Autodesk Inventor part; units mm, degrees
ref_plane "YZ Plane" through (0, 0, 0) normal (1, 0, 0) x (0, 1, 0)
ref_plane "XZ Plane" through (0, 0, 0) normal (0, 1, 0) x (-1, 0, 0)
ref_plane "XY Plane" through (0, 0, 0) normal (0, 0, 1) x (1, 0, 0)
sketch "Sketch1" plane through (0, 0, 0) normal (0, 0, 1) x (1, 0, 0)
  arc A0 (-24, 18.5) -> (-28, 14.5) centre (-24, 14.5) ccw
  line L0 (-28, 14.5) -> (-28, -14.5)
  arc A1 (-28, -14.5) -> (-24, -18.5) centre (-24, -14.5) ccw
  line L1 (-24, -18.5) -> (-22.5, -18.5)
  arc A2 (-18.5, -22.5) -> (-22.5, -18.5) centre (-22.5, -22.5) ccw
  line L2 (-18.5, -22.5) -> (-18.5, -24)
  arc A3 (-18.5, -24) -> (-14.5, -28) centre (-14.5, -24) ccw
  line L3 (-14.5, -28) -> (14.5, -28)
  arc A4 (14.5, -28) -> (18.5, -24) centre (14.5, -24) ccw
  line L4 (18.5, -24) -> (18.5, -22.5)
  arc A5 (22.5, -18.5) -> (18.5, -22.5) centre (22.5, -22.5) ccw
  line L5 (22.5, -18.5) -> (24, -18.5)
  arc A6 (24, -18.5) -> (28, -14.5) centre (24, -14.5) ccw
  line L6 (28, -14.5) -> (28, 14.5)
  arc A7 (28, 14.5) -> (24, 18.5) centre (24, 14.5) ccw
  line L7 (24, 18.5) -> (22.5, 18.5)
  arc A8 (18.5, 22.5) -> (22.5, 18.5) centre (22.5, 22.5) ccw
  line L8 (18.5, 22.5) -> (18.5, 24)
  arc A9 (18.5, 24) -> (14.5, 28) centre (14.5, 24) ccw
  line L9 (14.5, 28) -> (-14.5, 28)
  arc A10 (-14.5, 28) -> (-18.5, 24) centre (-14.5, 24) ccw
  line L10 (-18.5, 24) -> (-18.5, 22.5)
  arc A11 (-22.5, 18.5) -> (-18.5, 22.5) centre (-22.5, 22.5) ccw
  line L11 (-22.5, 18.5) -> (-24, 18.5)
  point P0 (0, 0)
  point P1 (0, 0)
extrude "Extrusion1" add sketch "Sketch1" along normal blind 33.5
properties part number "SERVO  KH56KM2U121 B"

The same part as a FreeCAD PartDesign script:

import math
import FreeCAD as App
import Part
import Sketcher

doc = App.newDocument("Part")
body = doc.addObject("PartDesign::Body", "Body")

# Sketch on XY plane
sketch1 = body.newObject("Sketcher::SketchObject", "Sketch")
sketch1.AttachmentSupport = (doc.getObject("XY_Plane"), [""])
sketch1.MapMode = "FlatFace"
sketch1.addGeometry(Part.LineSegment(App.Vector(-22.5, 18.5, 0), App.Vector(-24, 18.5, 0)), False)
sketch1.addGeometry(Part.ArcOfCircle(Part.Circle(App.Vector(-24, 14.5, 0), App.Vector(0, 0, 1), 4), math.radians(90), math.radians(180)), False)
sketch1.addGeometry(Part.LineSegment(App.Vector(-28, 14.5, 0), App.Vector(-28, -14.5, 0)), False)
sketch1.addGeometry(Part.ArcOfCircle(Part.Circle(App.Vector(-24, -14.5, 0), App.Vector(0, 0, 1), 4), math.radians(180), math.radians(270)), False)
sketch1.addGeometry(Part.LineSegment(App.Vector(-24, -18.5, 0), App.Vector(-22.5, -18.5, 0)), False)
sketch1.addGeometry(Part.ArcOfCircle(Part.Circle(App.Vector(-22.5, -22.5, 0), App.Vector(0, 0, 1), 4), math.radians(0), math.radians(90)), False)
sketch1.addGeometry(Part.LineSegment(App.Vector(-18.5, -22.5, 0), App.Vector(-18.5, -24, 0)), False)
sketch1.addGeometry(Part.ArcOfCircle(Part.Circle(App.Vector(-14.5, -24, 0), App.Vector(0, 0, 1), 4), math.radians(180), math.radians(270)), False)
sketch1.addGeometry(Part.LineSegment(App.Vector(-14.5, -28, 0), App.Vector(14.5, -28, 0)), False)
sketch1.addGeometry(Part.ArcOfCircle(Part.Circle(App.Vector(14.5, -24, 0), App.Vector(0, 0, 1), 4), math.radians(-90), math.radians(0)), False)
sketch1.addGeometry(Part.LineSegment(App.Vector(18.5, -24, 0), App.Vector(18.5, -22.5, 0)), False)
sketch1.addGeometry(Part.ArcOfCircle(Part.Circle(App.Vector(22.5, -22.5, 0), App.Vector(0, 0, 1), 4), math.radians(90), math.radians(180)), False)
sketch1.addGeometry(Part.LineSegment(App.Vector(22.5, -18.5, 0), App.Vector(24, -18.5, 0)), False)
sketch1.addGeometry(Part.ArcOfCircle(Part.Circle(App.Vector(24, -14.5, 0), App.Vector(0, 0, 1), 4), math.radians(-90), math.radians(0)), False)
sketch1.addGeometry(Part.LineSegment(App.Vector(28, -14.5, 0), App.Vector(28, 14.5, 0)), False)
sketch1.addGeometry(Part.ArcOfCircle(Part.Circle(App.Vector(24, 14.5, 0), App.Vector(0, 0, 1), 4), math.radians(0), math.radians(90)), False)
sketch1.addGeometry(Part.LineSegment(App.Vector(24, 18.5, 0), App.Vector(22.5, 18.5, 0)), False)
sketch1.addGeometry(Part.ArcOfCircle(Part.Circle(App.Vector(22.5, 22.5, 0), App.Vector(0, 0, 1), 4), math.radians(180), math.radians(270)), False)
sketch1.addGeometry(Part.LineSegment(App.Vector(18.5, 22.5, 0), App.Vector(18.5, 24, 0)), False)
sketch1.addGeometry(Part.ArcOfCircle(Part.Circle(App.Vector(14.5, 24, 0), App.Vector(0, 0, 1), 4), math.radians(0), math.radians(90)), False)
sketch1.addGeometry(Part.LineSegment(App.Vector(14.5, 28, 0), App.Vector(-14.5, 28, 0)), False)
sketch1.addGeometry(Part.ArcOfCircle(Part.Circle(App.Vector(-14.5, 24, 0), App.Vector(0, 0, 1), 4), math.radians(90), math.radians(180)), False)
sketch1.addGeometry(Part.LineSegment(App.Vector(-18.5, 24, 0), App.Vector(-18.5, 22.5, 0)), False)
sketch1.addGeometry(Part.ArcOfCircle(Part.Circle(App.Vector(-22.5, 22.5, 0), App.Vector(0, 0, 1), 4), math.radians(-90), math.radians(0)), False)
sketch1.addConstraint(Sketcher.Constraint("Tangent", 0, 2, 1, 1))
sketch1.addConstraint(Sketcher.Constraint("Tangent", 1, 2, 2, 1))
sketch1.addConstraint(Sketcher.Constraint("Tangent", 2, 2, 3, 1))
sketch1.addConstraint(Sketcher.Constraint("Tangent", 3, 2, 4, 1))
sketch1.addConstraint(Sketcher.Constraint("Tangent", 4, 2, 5, 2))
sketch1.addConstraint(Sketcher.Constraint("Tangent", 5, 1, 6, 1))
sketch1.addConstraint(Sketcher.Constraint("Tangent", 6, 2, 7, 1))
sketch1.addConstraint(Sketcher.Constraint("Tangent", 7, 2, 8, 1))
sketch1.addConstraint(Sketcher.Constraint("Tangent", 8, 2, 9, 1))
sketch1.addConstraint(Sketcher.Constraint("Tangent", 9, 2, 10, 1))
sketch1.addConstraint(Sketcher.Constraint("Tangent", 10, 2, 11, 2))
sketch1.addConstraint(Sketcher.Constraint("Tangent", 11, 1, 12, 1))
sketch1.addConstraint(Sketcher.Constraint("Tangent", 12, 2, 13, 1))
sketch1.addConstraint(Sketcher.Constraint("Tangent", 13, 2, 14, 1))
sketch1.addConstraint(Sketcher.Constraint("Tangent", 14, 2, 15, 1))
sketch1.addConstraint(Sketcher.Constraint("Tangent", 15, 2, 16, 1))
sketch1.addConstraint(Sketcher.Constraint("Tangent", 16, 2, 17, 2))
sketch1.addConstraint(Sketcher.Constraint("Tangent", 17, 1, 18, 1))
sketch1.addConstraint(Sketcher.Constraint("Tangent", 18, 2, 19, 1))
sketch1.addConstraint(Sketcher.Constraint("Tangent", 19, 2, 20, 1))
sketch1.addConstraint(Sketcher.Constraint("Tangent", 20, 2, 21, 1))
sketch1.addConstraint(Sketcher.Constraint("Tangent", 21, 2, 22, 1))
sketch1.addConstraint(Sketcher.Constraint("Tangent", 22, 2, 23, 2))
sketch1.addConstraint(Sketcher.Constraint("Tangent", 23, 1, 0, 1))
sketch1.addConstraint(Sketcher.Constraint("Horizontal", 0))
sketch1.addConstraint(Sketcher.Constraint("Vertical", 2))
sketch1.addConstraint(Sketcher.Constraint("Horizontal", 4))
sketch1.addConstraint(Sketcher.Constraint("Vertical", 6))
sketch1.addConstraint(Sketcher.Constraint("Horizontal", 8))
sketch1.addConstraint(Sketcher.Constraint("Vertical", 10))
sketch1.addConstraint(Sketcher.Constraint("Horizontal", 12))
sketch1.addConstraint(Sketcher.Constraint("Vertical", 14))
sketch1.addConstraint(Sketcher.Constraint("Horizontal", 16))
sketch1.addConstraint(Sketcher.Constraint("Vertical", 18))
sketch1.addConstraint(Sketcher.Constraint("Horizontal", 20))
sketch1.addConstraint(Sketcher.Constraint("Vertical", 22))
sketch1.addConstraint(Sketcher.Constraint("Equal", 1, 3))
sketch1.addConstraint(Sketcher.Constraint("Equal", 3, 5))
sketch1.addConstraint(Sketcher.Constraint("Equal", 5, 7))
sketch1.addConstraint(Sketcher.Constraint("Equal", 7, 9))
sketch1.addConstraint(Sketcher.Constraint("Equal", 9, 11))
sketch1.addConstraint(Sketcher.Constraint("Equal", 11, 13))
sketch1.addConstraint(Sketcher.Constraint("Equal", 13, 15))
sketch1.addConstraint(Sketcher.Constraint("Equal", 15, 17))
sketch1.addConstraint(Sketcher.Constraint("Equal", 17, 19))
sketch1.addConstraint(Sketcher.Constraint("Equal", 19, 21))
sketch1.addConstraint(Sketcher.Constraint("Equal", 21, 23))
sketch1.addConstraint(Sketcher.Constraint("Symmetric", 1, 3, 13, 3, -1, 1))
sketch1.addConstraint(Sketcher.Constraint("Symmetric", 5, 3, 17, 3, -1, 1))
sketch1.addConstraint(Sketcher.Constraint("Symmetric", 9, 3, 21, 3, -1, 1))
sketch1.addConstraint(Sketcher.Constraint("Symmetric", 5, 3, 11, 3, -2))
sketch1.addConstraint(Sketcher.Constraint("Equal", 20, 2))
sketch1.addConstraint(Sketcher.Constraint("Equal", 16, 6))
sketch1.addConstraint(Sketcher.Constraint("Radius", 1, 4.0))
sketch1.addConstraint(Sketcher.Constraint("DistanceX", 8, 1, 8, 2, 29.0))
sketch1.addConstraint(Sketcher.Constraint("DistanceX", 0, 2, 0, 1, 1.5))
pad1 = body.newObject("PartDesign::Pad", "Pad")
pad1.Profile = sketch1
pad1.Length = 33.5

doc.recompute()
